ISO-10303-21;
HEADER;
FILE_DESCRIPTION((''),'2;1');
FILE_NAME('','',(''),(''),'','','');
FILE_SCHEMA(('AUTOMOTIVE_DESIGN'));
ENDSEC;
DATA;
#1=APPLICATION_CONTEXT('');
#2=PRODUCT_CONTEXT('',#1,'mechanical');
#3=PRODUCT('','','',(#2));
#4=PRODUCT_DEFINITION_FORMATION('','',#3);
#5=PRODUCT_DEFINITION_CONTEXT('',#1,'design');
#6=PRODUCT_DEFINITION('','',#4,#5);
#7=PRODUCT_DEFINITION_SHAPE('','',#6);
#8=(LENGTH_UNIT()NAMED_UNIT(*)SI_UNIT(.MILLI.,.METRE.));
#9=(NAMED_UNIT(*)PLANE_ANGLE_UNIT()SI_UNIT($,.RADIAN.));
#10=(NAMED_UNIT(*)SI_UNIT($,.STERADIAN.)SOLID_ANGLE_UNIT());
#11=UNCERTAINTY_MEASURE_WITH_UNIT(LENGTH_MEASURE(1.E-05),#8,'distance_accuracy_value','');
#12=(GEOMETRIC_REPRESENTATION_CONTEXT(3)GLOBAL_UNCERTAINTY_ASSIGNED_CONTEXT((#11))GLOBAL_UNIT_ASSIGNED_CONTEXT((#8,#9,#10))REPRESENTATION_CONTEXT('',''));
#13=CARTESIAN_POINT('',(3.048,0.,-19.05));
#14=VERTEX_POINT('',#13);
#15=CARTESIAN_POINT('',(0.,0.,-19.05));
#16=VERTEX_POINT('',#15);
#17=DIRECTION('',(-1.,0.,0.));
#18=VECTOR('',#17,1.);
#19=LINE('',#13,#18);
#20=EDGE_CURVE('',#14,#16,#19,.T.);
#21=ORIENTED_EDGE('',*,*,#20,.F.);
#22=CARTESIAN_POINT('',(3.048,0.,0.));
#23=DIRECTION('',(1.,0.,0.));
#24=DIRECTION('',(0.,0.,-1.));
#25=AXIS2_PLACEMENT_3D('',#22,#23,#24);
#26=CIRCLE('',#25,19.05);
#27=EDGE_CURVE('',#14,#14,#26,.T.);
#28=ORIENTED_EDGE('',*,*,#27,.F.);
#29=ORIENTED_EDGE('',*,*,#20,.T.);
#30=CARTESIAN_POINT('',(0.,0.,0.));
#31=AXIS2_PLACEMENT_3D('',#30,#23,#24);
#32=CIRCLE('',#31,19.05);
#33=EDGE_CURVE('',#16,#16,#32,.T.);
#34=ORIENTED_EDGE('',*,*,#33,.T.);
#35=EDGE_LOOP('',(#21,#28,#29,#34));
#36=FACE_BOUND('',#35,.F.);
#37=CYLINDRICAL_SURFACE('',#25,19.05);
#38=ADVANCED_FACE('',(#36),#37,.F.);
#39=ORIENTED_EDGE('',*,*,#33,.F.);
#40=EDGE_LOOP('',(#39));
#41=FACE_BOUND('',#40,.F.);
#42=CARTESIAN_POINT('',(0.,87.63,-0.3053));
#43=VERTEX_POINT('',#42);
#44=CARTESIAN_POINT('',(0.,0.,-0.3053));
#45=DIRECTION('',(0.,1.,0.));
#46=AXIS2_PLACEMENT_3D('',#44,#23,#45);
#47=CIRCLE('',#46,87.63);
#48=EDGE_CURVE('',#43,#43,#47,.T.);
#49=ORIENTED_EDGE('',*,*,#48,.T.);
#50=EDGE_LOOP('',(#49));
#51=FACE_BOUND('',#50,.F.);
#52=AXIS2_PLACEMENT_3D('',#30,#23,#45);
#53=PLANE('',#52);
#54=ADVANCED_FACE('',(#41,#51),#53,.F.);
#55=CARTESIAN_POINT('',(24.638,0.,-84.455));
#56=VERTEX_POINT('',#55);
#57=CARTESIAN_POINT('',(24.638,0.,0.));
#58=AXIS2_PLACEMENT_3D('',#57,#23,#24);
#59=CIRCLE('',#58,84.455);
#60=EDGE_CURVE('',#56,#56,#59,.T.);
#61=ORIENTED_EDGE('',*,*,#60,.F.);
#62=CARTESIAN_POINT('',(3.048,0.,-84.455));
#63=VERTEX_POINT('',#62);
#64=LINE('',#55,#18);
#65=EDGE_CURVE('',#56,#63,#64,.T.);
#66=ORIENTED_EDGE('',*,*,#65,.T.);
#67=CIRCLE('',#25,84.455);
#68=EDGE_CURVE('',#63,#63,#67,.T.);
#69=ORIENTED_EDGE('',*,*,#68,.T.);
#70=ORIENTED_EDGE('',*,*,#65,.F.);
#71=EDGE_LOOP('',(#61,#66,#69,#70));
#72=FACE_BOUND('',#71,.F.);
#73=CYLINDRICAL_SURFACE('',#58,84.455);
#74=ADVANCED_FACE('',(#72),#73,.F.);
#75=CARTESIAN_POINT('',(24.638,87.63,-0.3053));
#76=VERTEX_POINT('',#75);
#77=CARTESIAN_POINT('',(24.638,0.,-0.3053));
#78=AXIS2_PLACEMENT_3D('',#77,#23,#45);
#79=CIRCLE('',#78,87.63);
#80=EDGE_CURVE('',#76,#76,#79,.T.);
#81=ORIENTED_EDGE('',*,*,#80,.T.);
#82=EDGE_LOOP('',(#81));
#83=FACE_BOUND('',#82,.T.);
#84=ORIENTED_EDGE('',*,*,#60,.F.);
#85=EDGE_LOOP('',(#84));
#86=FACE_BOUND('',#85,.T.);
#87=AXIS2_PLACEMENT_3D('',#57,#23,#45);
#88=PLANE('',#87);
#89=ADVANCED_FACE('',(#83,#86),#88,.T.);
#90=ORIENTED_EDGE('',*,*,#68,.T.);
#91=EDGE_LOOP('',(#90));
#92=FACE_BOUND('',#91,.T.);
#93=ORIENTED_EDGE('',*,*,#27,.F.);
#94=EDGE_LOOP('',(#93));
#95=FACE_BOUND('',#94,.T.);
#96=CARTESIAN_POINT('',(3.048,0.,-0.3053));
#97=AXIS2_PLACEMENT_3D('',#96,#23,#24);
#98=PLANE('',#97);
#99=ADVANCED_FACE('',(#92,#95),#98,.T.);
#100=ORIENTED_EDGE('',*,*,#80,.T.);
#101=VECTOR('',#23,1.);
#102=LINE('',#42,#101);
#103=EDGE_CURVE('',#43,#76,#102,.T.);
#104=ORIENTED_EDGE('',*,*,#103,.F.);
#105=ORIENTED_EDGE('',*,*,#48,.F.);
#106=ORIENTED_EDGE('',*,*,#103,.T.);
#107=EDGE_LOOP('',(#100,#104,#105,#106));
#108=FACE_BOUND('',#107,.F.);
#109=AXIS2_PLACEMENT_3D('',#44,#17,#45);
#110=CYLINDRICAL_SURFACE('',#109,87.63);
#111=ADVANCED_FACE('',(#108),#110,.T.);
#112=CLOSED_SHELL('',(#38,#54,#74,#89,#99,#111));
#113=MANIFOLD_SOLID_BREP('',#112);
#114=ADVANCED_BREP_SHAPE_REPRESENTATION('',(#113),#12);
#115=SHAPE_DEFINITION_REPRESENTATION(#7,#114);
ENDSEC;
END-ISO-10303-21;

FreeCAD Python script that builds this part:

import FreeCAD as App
import Part
import Sketcher
Q = App.Units.Quantity

doc = App.newDocument("Part")
body = doc.addObject("PartDesign::Body", "Body")

sketch1 = doc.addObject("Sketcher::SketchObject", "Sketch")
body.addObject(sketch1)
sketch1.AttachmentSupport = (doc.YZ_Plane, [""])
sketch1.MapMode = "FlatFace"
sketch1.addGeometry(Part.Circle(App.Vector(0, 0, 0), App.Vector(0, 0, 1), 88), False)
sketch1.addConstraint([
    Sketcher.Constraint("PointOnObject", 0, 3, -2),
    Sketcher.Constraint("Diameter", 0, Q("6.9 in")),
    Sketcher.Constraint("DistanceY", 0, 3, -1, 1, 0.3053),
])
pad1 = doc.addObject("PartDesign::Pad", "Pad")
body.addObject(pad1)
pad1.Profile = sketch1
pad1.Length = Q("0.97 in")

sketch2 = doc.addObject("Sketcher::SketchObject", "Sketch001")
body.addObject(sketch2)
sketch2.AttachmentSupport = (doc.YZ_Plane, [""])
sketch2.MapMode = "FlatFace"
sketch2.AttachmentOffset = App.Placement(App.Vector(0, 0, 0.97 * 25.4), App.Rotation())
sketch2.addGeometry(Part.Circle(App.Vector(0, 0, 0), App.Vector(0, 0, 1), 84), False)
sketch2.addConstraint([
    Sketcher.Constraint("Coincident", 0, 3, -1, 1),
    Sketcher.Constraint("Diameter", 0, Q("6.65 in")),
])
pocket1 = doc.addObject("PartDesign::Pocket", "Pocket")
body.addObject(pocket1)
pocket1.Profile = sketch2
pocket1.Length = Q("0.85 in")

sketch3 = doc.addObject("Sketcher::SketchObject", "Sketch002")
body.addObject(sketch3)
sketch3.AttachmentSupport = (doc.YZ_Plane, [""])
sketch3.MapMode = "FlatFace"
sketch3.AttachmentOffset = App.Placement(App.Vector(0, 0, 0.12 * 25.4), App.Rotation())
sketch3.addGeometry(Part.Circle(App.Vector(0, 0, 0), App.Vector(0, 0, 1), 19), False)
sketch3.addConstraint([
    Sketcher.Constraint("Coincident", 0, 3, -1, 1),
    Sketcher.Constraint("Diameter", 0, Q("1.5 in")),
])
pocket2 = doc.addObject("PartDesign::Pocket", "Pocket001")
body.addObject(pocket2)
pocket2.Profile = sketch3
pocket2.Type = "UpToFirst"

doc.recompute()
